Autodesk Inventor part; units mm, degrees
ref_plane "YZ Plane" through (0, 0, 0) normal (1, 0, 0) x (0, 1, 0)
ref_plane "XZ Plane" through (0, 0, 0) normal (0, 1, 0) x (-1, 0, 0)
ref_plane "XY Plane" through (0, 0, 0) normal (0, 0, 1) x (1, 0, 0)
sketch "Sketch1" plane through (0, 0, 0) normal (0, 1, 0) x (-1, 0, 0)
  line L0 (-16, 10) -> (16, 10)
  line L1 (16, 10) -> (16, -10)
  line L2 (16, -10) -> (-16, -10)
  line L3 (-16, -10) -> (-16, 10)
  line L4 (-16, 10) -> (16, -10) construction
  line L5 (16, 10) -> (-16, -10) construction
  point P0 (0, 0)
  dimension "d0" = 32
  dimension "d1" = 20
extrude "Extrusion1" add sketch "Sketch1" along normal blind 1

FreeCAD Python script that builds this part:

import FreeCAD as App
import Part
import Sketcher


def add_polygon(sketch, points):
    """Adds a closed chain of lines whose ends are joined by coincident constraints."""
    first, n = sketch.GeometryCount, len(points)
    for a, b in zip(points, points[1:] + points[:1]):
        sketch.addGeometry(Part.LineSegment(App.Vector(*a, 0), App.Vector(*b, 0)), False)
    for i in range(n):
        sketch.addConstraint(Sketcher.Constraint("Coincident", first + i, 2, first + (i + 1) % n, 1))

doc = App.newDocument("Part")
body = doc.addObject("PartDesign::Body", "Body")

sketch1 = doc.addObject("Sketcher::SketchObject", "Sketch")
body.addObject(sketch1)
sketch1.AttachmentSupport = (doc.XZ_Plane, [""])
sketch1.MapMode = "FlatFace"
add_polygon(sketch1, [(-16, 10), (16, 10), (16, -10), (-16, -10)])
sketch1.addConstraint(Sketcher.Constraint("Horizontal", 0))
sketch1.addConstraint(Sketcher.Constraint("Vertical", 1))
sketch1.addConstraint(Sketcher.Constraint("Horizontal", 2))
sketch1.addConstraint(Sketcher.Constraint("Vertical", 3))
sketch1.addConstraint(Sketcher.Constraint("Symmetric", 0, 2, 2, 2, -1, 1))
sketch1.addConstraint(Sketcher.Constraint("DistanceX", 0, 1, 0, 2, 32.0))
sketch1.addConstraint(Sketcher.Constraint("DistanceY", 1, 2, 1, 1, 20.0))
pad1 = doc.addObject("PartDesign::Pad", "Pad")
body.addObject(pad1)
pad1.Profile = sketch1
pad1.Length = 1
pad1.Reversed = True

doc.recompute()
